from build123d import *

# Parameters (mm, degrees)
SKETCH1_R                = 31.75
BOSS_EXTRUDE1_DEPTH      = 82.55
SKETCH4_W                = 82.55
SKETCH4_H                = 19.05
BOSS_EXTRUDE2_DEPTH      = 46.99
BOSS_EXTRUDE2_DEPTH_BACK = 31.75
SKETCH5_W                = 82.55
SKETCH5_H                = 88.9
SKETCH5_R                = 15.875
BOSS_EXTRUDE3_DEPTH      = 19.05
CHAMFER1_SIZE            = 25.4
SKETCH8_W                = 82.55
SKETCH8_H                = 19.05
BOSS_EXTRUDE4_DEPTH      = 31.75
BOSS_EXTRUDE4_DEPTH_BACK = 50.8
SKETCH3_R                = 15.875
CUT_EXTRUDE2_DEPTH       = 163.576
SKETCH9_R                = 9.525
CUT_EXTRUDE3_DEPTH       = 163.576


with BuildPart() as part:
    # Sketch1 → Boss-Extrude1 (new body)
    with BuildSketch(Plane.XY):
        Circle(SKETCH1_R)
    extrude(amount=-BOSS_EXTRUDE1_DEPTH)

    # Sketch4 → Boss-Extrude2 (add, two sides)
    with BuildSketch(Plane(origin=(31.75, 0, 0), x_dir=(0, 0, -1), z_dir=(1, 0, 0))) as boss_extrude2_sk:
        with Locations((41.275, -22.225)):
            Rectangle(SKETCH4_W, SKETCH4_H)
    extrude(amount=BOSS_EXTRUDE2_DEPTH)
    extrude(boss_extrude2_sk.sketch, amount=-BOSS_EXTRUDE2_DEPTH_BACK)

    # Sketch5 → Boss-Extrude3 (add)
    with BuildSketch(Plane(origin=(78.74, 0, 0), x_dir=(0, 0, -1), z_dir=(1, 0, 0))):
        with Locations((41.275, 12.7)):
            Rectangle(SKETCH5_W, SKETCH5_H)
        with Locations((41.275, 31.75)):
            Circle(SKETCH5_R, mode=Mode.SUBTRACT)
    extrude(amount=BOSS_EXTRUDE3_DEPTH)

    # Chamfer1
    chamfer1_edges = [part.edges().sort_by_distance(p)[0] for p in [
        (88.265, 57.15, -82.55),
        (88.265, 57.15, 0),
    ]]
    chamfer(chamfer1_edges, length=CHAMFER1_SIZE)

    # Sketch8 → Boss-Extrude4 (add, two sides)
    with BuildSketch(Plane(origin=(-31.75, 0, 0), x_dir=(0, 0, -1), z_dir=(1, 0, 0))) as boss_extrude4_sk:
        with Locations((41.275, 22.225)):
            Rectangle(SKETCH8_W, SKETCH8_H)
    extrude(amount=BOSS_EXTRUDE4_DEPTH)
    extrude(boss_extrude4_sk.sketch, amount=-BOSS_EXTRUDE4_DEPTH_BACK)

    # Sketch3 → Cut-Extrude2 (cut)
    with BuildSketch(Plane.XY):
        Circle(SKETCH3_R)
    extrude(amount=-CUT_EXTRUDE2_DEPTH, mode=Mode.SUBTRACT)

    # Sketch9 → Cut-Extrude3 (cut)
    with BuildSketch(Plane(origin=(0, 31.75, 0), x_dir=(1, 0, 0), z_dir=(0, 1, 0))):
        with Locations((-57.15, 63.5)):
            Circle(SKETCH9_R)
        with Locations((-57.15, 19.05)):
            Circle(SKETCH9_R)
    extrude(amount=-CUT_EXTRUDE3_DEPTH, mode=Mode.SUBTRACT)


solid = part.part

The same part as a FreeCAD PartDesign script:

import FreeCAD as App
import Part
import Sketcher

V = App.Vector
Q = App.Units.Quantity


def edges_at(feature, points):
    """Names of the edges that pass closest to the given points."""
    edges = feature.Shape.Edges
    near = lambda p: min(range(len(edges)), key=lambda i: edges[i].distToShape(Part.Vertex(*p))[0])
    return sorted({f"Edge{near(p) + 1}" for p in points})

doc = App.newDocument("Part")
body = doc.addObject("PartDesign::Body", "Body")

sketch1 = body.newObject("Sketcher::SketchObject", "Sketch")
sketch1.AttachmentSupport = (doc.getObject("XY_Plane"), [""])
sketch1.MapMode = "FlatFace"
sketch1.addGeometry(Part.Circle(V(0, 0, 0), V(0, 0, 1), 32), False)
sketch1.addConstraint([
    Sketcher.Constraint("Coincident", 0, 3, -1, 1),
    Sketcher.Constraint("Diameter", 0, Q("2.5 in")),
])
pad1 = body.newObject("PartDesign::Pad", "Pad")
pad1.Profile = sketch1
pad1.Length = Q("3.25 in")
pad1.Reversed = True

sketch2 = body.newObject("Sketcher::SketchObject", "Sketch001")
sketch2.AttachmentSupport = (doc.getObject("YZ_Plane"), [""])
sketch2.MapMode = "FlatFace"
sketch2.AttachmentOffset = App.Placement(V(0, 0, 1.25 * 25.4), App.Rotation())
sketch2.addGeometry([
    Part.LineSegment(V(-13, 0, 0), V(-32, 0, 0)),
    Part.LineSegment(V(-32, 0, 0), V(-32, -83, 0)),
    Part.LineSegment(V(-32, -83, 0), V(-13, -83, 0)),
    Part.LineSegment(V(-13, -83, 0), V(-13, 0, 0)),
], False)
sketch2.addConstraint([
    Sketcher.Constraint("Coincident", 0, 2, 1, 1),
    Sketcher.Constraint("Coincident", 1, 2, 2, 1),
    Sketcher.Constraint("Coincident", 2, 2, 3, 1),
    Sketcher.Constraint("Coincident", 3, 2, 0, 1),
    Sketcher.Constraint("Horizontal", 0),
    Sketcher.Constraint("Vertical", 1),
    Sketcher.Constraint("Horizontal", 2),
    Sketcher.Constraint("Vertical", 3),
    Sketcher.Constraint("PointOnObject", 0, 2, -1),
    Sketcher.Constraint("DistanceX", 0, 2, 0, 1, Q("0.75 in")),
    Sketcher.Constraint("DistanceY", 1, 2, 1, 1, Q("3.25 in")),
    Sketcher.Constraint("DistanceX", 2, 2, -1, 1, Q("0.5 in")),
])
pad2 = body.newObject("PartDesign::Pad", "Pad001")
pad2.Profile = sketch2
pad2.Type = "TwoLengths"
pad2.Length = Q("1.85 in")
pad2.Length2 = Q("1.25 in")

sketch3 = body.newObject("Sketcher::SketchObject", "Sketch002")
sketch3.AttachmentSupport = (doc.getObject("YZ_Plane"), [""])
sketch3.MapMode = "FlatFace"
sketch3.AttachmentOffset = App.Placement(V(0, 0, 3.1 * 25.4), App.Rotation())
sketch3.addGeometry([
    Part.LineSegment(V(57, 0, 0), V(-32, 0, 0)),
    Part.LineSegment(V(-32, 0, 0), V(-32, -83, 0)),
    Part.LineSegment(V(-32, -83, 0), V(57, -83, 0)),
    Part.LineSegment(V(57, -83, 0), V(57, 0, 0)),
    Part.Circle(V(32, -41, 0), V(0, 0, 1), 16),
], False)
sketch3.addConstraint([
    Sketcher.Constraint("Coincident", 0, 2, 1, 1),
    Sketcher.Constraint("Coincident", 1, 2, 2, 1),
    Sketcher.Constraint("Coincident", 2, 2, 3, 1),
    Sketcher.Constraint("Coincident", 3, 2, 0, 1),
    Sketcher.Constraint("Horizontal", 0),
    Sketcher.Constraint("Vertical", 1),
    Sketcher.Constraint("Horizontal", 2),
    Sketcher.Constraint("Vertical", 3),
    Sketcher.Constraint("PointOnObject", 0, 2, -1),
    Sketcher.Constraint("Diameter", 4, Q("1.25 in")),
    Sketcher.Constraint("DistanceX", 0, 2, 0, 1, Q("3.5 in")),
    Sketcher.Constraint("DistanceX", 4, 3, 2, 2, Q("1 in")),
    Sketcher.Constraint("DistanceY", 1, 2, 1, 1, Q("3.25 in")),
    Sketcher.Constraint("DistanceX", -1, 1, 4, 3, Q("1.25 in")),
    Sketcher.Constraint("DistanceY", 4, 3, -1, 1, Q("1.625 in")),
])
pad3 = body.newObject("PartDesign::Pad", "Pad002")
pad3.Profile = sketch3
pad3.Length = Q("0.75 in")
doc.recompute()

chamfer = body.newObject("PartDesign::Chamfer", "Chamfer")
chamfer.Base = (pad3, edges_at(pad3, [(88.265, 57.15, -82.55), (88.265, 57.15, 0)]))
chamfer.Size = Q("1 in")

sketch4 = body.newObject("Sketcher::SketchObject", "Sketch003")
sketch4.AttachmentSupport = (doc.getObject("YZ_Plane"), [""])
sketch4.MapMode = "FlatFace"
sketch4.AttachmentOffset = App.Placement(V(0, 0, -1.25 * 25.4), App.Rotation())
sketch4.addGeometry([
    Part.LineSegment(V(32, 0, 0), V(13, 0, 0)),
    Part.LineSegment(V(13, 0, 0), V(13, -83, 0)),
    Part.LineSegment(V(13, -83, 0), V(32, -83, 0)),
    Part.LineSegment(V(32, -83, 0), V(32, 0, 0)),
], False)
sketch4.addConstraint([
    Sketcher.Constraint("Coincident", 0, 2, 1, 1),
    Sketcher.Constraint("Coincident", 1, 2, 2, 1),
    Sketcher.Constraint("Coincident", 2, 2, 3, 1),
    Sketcher.Constraint("Coincident", 3, 2, 0, 1),
    Sketcher.Constraint("Horizontal", 0),
    Sketcher.Constraint("Vertical", 1),
    Sketcher.Constraint("Horizontal", 2),
    Sketcher.Constraint("Vertical", 3),
    Sketcher.Constraint("PointOnObject", 0, 2, -1),
    Sketcher.Constraint("DistanceX", 0, 2, 0, 1, Q("0.75 in")),
    Sketcher.Constraint("DistanceY", 1, 2, 1, 1, Q("3.25 in")),
    Sketcher.Constraint("DistanceX", -1, 1, 0, 2, Q("0.5 in")),
])
pad4 = body.newObject("PartDesign::Pad", "Pad003")
pad4.Profile = sketch4
pad4.Type = "TwoLengths"
pad4.Length = Q("1.25 in")
pad4.Length2 = Q("2 in")

sketch5 = body.newObject("Sketcher::SketchObject", "Sketch004")
sketch5.AttachmentSupport = (doc.getObject("XY_Plane"), [""])
sketch5.MapMode = "FlatFace"
sketch5.addGeometry(Part.Circle(V(0, 0, 0), V(0, 0, 1), 16), False)
sketch5.addConstraint([
    Sketcher.Constraint("Coincident", 0, 3, -1, 1),
    Sketcher.Constraint("Diameter", 0, Q("1.25 in")),
])
pocket1 = body.newObject("PartDesign::Pocket", "Pocket")
pocket1.Profile = sketch5
pocket1.Length = Q("6.44 in")

sketch6 = body.newObject("Sketcher::SketchObject", "Sketch005")
sketch6.AttachmentSupport = (doc.getObject("XZ_Plane"), [""])
sketch6.MapMode = "FlatFace"
sketch6.AttachmentOffset = App.Placement(V(0, 0, -1.25 * 25.4), App.Rotation())
sketch6.addGeometry([
    Part.Circle(V(-57, -64, 0), V(0, 0, 1), 10),
    Part.Circle(V(-57, -19, 0), V(0, 0, 1), 10),
], False)
sketch6.addConstraint([
    Sketcher.Constraint("Equal", 0, 1),
    Sketcher.Constraint("Vertical", 0, 3, 1, 3),
    Sketcher.Constraint("Diameter", 0, Q("0.75 in")),
    Sketcher.Constraint("DistanceY", 0, 3, -1, 1, Q("2.5 in")),
    Sketcher.Constraint("DistanceX", 0, 3, -1, 1, Q("2.25 in")),
    Sketcher.Constraint("DistanceY", 1, 3, -1, 1, Q("0.75 in")),
])
pocket2 = body.newObject("PartDesign::Pocket", "Pocket001")
pocket2.Profile = sketch6
pocket2.Length = Q("6.44 in")
pocket2.Reversed = True

doc.recompute()
